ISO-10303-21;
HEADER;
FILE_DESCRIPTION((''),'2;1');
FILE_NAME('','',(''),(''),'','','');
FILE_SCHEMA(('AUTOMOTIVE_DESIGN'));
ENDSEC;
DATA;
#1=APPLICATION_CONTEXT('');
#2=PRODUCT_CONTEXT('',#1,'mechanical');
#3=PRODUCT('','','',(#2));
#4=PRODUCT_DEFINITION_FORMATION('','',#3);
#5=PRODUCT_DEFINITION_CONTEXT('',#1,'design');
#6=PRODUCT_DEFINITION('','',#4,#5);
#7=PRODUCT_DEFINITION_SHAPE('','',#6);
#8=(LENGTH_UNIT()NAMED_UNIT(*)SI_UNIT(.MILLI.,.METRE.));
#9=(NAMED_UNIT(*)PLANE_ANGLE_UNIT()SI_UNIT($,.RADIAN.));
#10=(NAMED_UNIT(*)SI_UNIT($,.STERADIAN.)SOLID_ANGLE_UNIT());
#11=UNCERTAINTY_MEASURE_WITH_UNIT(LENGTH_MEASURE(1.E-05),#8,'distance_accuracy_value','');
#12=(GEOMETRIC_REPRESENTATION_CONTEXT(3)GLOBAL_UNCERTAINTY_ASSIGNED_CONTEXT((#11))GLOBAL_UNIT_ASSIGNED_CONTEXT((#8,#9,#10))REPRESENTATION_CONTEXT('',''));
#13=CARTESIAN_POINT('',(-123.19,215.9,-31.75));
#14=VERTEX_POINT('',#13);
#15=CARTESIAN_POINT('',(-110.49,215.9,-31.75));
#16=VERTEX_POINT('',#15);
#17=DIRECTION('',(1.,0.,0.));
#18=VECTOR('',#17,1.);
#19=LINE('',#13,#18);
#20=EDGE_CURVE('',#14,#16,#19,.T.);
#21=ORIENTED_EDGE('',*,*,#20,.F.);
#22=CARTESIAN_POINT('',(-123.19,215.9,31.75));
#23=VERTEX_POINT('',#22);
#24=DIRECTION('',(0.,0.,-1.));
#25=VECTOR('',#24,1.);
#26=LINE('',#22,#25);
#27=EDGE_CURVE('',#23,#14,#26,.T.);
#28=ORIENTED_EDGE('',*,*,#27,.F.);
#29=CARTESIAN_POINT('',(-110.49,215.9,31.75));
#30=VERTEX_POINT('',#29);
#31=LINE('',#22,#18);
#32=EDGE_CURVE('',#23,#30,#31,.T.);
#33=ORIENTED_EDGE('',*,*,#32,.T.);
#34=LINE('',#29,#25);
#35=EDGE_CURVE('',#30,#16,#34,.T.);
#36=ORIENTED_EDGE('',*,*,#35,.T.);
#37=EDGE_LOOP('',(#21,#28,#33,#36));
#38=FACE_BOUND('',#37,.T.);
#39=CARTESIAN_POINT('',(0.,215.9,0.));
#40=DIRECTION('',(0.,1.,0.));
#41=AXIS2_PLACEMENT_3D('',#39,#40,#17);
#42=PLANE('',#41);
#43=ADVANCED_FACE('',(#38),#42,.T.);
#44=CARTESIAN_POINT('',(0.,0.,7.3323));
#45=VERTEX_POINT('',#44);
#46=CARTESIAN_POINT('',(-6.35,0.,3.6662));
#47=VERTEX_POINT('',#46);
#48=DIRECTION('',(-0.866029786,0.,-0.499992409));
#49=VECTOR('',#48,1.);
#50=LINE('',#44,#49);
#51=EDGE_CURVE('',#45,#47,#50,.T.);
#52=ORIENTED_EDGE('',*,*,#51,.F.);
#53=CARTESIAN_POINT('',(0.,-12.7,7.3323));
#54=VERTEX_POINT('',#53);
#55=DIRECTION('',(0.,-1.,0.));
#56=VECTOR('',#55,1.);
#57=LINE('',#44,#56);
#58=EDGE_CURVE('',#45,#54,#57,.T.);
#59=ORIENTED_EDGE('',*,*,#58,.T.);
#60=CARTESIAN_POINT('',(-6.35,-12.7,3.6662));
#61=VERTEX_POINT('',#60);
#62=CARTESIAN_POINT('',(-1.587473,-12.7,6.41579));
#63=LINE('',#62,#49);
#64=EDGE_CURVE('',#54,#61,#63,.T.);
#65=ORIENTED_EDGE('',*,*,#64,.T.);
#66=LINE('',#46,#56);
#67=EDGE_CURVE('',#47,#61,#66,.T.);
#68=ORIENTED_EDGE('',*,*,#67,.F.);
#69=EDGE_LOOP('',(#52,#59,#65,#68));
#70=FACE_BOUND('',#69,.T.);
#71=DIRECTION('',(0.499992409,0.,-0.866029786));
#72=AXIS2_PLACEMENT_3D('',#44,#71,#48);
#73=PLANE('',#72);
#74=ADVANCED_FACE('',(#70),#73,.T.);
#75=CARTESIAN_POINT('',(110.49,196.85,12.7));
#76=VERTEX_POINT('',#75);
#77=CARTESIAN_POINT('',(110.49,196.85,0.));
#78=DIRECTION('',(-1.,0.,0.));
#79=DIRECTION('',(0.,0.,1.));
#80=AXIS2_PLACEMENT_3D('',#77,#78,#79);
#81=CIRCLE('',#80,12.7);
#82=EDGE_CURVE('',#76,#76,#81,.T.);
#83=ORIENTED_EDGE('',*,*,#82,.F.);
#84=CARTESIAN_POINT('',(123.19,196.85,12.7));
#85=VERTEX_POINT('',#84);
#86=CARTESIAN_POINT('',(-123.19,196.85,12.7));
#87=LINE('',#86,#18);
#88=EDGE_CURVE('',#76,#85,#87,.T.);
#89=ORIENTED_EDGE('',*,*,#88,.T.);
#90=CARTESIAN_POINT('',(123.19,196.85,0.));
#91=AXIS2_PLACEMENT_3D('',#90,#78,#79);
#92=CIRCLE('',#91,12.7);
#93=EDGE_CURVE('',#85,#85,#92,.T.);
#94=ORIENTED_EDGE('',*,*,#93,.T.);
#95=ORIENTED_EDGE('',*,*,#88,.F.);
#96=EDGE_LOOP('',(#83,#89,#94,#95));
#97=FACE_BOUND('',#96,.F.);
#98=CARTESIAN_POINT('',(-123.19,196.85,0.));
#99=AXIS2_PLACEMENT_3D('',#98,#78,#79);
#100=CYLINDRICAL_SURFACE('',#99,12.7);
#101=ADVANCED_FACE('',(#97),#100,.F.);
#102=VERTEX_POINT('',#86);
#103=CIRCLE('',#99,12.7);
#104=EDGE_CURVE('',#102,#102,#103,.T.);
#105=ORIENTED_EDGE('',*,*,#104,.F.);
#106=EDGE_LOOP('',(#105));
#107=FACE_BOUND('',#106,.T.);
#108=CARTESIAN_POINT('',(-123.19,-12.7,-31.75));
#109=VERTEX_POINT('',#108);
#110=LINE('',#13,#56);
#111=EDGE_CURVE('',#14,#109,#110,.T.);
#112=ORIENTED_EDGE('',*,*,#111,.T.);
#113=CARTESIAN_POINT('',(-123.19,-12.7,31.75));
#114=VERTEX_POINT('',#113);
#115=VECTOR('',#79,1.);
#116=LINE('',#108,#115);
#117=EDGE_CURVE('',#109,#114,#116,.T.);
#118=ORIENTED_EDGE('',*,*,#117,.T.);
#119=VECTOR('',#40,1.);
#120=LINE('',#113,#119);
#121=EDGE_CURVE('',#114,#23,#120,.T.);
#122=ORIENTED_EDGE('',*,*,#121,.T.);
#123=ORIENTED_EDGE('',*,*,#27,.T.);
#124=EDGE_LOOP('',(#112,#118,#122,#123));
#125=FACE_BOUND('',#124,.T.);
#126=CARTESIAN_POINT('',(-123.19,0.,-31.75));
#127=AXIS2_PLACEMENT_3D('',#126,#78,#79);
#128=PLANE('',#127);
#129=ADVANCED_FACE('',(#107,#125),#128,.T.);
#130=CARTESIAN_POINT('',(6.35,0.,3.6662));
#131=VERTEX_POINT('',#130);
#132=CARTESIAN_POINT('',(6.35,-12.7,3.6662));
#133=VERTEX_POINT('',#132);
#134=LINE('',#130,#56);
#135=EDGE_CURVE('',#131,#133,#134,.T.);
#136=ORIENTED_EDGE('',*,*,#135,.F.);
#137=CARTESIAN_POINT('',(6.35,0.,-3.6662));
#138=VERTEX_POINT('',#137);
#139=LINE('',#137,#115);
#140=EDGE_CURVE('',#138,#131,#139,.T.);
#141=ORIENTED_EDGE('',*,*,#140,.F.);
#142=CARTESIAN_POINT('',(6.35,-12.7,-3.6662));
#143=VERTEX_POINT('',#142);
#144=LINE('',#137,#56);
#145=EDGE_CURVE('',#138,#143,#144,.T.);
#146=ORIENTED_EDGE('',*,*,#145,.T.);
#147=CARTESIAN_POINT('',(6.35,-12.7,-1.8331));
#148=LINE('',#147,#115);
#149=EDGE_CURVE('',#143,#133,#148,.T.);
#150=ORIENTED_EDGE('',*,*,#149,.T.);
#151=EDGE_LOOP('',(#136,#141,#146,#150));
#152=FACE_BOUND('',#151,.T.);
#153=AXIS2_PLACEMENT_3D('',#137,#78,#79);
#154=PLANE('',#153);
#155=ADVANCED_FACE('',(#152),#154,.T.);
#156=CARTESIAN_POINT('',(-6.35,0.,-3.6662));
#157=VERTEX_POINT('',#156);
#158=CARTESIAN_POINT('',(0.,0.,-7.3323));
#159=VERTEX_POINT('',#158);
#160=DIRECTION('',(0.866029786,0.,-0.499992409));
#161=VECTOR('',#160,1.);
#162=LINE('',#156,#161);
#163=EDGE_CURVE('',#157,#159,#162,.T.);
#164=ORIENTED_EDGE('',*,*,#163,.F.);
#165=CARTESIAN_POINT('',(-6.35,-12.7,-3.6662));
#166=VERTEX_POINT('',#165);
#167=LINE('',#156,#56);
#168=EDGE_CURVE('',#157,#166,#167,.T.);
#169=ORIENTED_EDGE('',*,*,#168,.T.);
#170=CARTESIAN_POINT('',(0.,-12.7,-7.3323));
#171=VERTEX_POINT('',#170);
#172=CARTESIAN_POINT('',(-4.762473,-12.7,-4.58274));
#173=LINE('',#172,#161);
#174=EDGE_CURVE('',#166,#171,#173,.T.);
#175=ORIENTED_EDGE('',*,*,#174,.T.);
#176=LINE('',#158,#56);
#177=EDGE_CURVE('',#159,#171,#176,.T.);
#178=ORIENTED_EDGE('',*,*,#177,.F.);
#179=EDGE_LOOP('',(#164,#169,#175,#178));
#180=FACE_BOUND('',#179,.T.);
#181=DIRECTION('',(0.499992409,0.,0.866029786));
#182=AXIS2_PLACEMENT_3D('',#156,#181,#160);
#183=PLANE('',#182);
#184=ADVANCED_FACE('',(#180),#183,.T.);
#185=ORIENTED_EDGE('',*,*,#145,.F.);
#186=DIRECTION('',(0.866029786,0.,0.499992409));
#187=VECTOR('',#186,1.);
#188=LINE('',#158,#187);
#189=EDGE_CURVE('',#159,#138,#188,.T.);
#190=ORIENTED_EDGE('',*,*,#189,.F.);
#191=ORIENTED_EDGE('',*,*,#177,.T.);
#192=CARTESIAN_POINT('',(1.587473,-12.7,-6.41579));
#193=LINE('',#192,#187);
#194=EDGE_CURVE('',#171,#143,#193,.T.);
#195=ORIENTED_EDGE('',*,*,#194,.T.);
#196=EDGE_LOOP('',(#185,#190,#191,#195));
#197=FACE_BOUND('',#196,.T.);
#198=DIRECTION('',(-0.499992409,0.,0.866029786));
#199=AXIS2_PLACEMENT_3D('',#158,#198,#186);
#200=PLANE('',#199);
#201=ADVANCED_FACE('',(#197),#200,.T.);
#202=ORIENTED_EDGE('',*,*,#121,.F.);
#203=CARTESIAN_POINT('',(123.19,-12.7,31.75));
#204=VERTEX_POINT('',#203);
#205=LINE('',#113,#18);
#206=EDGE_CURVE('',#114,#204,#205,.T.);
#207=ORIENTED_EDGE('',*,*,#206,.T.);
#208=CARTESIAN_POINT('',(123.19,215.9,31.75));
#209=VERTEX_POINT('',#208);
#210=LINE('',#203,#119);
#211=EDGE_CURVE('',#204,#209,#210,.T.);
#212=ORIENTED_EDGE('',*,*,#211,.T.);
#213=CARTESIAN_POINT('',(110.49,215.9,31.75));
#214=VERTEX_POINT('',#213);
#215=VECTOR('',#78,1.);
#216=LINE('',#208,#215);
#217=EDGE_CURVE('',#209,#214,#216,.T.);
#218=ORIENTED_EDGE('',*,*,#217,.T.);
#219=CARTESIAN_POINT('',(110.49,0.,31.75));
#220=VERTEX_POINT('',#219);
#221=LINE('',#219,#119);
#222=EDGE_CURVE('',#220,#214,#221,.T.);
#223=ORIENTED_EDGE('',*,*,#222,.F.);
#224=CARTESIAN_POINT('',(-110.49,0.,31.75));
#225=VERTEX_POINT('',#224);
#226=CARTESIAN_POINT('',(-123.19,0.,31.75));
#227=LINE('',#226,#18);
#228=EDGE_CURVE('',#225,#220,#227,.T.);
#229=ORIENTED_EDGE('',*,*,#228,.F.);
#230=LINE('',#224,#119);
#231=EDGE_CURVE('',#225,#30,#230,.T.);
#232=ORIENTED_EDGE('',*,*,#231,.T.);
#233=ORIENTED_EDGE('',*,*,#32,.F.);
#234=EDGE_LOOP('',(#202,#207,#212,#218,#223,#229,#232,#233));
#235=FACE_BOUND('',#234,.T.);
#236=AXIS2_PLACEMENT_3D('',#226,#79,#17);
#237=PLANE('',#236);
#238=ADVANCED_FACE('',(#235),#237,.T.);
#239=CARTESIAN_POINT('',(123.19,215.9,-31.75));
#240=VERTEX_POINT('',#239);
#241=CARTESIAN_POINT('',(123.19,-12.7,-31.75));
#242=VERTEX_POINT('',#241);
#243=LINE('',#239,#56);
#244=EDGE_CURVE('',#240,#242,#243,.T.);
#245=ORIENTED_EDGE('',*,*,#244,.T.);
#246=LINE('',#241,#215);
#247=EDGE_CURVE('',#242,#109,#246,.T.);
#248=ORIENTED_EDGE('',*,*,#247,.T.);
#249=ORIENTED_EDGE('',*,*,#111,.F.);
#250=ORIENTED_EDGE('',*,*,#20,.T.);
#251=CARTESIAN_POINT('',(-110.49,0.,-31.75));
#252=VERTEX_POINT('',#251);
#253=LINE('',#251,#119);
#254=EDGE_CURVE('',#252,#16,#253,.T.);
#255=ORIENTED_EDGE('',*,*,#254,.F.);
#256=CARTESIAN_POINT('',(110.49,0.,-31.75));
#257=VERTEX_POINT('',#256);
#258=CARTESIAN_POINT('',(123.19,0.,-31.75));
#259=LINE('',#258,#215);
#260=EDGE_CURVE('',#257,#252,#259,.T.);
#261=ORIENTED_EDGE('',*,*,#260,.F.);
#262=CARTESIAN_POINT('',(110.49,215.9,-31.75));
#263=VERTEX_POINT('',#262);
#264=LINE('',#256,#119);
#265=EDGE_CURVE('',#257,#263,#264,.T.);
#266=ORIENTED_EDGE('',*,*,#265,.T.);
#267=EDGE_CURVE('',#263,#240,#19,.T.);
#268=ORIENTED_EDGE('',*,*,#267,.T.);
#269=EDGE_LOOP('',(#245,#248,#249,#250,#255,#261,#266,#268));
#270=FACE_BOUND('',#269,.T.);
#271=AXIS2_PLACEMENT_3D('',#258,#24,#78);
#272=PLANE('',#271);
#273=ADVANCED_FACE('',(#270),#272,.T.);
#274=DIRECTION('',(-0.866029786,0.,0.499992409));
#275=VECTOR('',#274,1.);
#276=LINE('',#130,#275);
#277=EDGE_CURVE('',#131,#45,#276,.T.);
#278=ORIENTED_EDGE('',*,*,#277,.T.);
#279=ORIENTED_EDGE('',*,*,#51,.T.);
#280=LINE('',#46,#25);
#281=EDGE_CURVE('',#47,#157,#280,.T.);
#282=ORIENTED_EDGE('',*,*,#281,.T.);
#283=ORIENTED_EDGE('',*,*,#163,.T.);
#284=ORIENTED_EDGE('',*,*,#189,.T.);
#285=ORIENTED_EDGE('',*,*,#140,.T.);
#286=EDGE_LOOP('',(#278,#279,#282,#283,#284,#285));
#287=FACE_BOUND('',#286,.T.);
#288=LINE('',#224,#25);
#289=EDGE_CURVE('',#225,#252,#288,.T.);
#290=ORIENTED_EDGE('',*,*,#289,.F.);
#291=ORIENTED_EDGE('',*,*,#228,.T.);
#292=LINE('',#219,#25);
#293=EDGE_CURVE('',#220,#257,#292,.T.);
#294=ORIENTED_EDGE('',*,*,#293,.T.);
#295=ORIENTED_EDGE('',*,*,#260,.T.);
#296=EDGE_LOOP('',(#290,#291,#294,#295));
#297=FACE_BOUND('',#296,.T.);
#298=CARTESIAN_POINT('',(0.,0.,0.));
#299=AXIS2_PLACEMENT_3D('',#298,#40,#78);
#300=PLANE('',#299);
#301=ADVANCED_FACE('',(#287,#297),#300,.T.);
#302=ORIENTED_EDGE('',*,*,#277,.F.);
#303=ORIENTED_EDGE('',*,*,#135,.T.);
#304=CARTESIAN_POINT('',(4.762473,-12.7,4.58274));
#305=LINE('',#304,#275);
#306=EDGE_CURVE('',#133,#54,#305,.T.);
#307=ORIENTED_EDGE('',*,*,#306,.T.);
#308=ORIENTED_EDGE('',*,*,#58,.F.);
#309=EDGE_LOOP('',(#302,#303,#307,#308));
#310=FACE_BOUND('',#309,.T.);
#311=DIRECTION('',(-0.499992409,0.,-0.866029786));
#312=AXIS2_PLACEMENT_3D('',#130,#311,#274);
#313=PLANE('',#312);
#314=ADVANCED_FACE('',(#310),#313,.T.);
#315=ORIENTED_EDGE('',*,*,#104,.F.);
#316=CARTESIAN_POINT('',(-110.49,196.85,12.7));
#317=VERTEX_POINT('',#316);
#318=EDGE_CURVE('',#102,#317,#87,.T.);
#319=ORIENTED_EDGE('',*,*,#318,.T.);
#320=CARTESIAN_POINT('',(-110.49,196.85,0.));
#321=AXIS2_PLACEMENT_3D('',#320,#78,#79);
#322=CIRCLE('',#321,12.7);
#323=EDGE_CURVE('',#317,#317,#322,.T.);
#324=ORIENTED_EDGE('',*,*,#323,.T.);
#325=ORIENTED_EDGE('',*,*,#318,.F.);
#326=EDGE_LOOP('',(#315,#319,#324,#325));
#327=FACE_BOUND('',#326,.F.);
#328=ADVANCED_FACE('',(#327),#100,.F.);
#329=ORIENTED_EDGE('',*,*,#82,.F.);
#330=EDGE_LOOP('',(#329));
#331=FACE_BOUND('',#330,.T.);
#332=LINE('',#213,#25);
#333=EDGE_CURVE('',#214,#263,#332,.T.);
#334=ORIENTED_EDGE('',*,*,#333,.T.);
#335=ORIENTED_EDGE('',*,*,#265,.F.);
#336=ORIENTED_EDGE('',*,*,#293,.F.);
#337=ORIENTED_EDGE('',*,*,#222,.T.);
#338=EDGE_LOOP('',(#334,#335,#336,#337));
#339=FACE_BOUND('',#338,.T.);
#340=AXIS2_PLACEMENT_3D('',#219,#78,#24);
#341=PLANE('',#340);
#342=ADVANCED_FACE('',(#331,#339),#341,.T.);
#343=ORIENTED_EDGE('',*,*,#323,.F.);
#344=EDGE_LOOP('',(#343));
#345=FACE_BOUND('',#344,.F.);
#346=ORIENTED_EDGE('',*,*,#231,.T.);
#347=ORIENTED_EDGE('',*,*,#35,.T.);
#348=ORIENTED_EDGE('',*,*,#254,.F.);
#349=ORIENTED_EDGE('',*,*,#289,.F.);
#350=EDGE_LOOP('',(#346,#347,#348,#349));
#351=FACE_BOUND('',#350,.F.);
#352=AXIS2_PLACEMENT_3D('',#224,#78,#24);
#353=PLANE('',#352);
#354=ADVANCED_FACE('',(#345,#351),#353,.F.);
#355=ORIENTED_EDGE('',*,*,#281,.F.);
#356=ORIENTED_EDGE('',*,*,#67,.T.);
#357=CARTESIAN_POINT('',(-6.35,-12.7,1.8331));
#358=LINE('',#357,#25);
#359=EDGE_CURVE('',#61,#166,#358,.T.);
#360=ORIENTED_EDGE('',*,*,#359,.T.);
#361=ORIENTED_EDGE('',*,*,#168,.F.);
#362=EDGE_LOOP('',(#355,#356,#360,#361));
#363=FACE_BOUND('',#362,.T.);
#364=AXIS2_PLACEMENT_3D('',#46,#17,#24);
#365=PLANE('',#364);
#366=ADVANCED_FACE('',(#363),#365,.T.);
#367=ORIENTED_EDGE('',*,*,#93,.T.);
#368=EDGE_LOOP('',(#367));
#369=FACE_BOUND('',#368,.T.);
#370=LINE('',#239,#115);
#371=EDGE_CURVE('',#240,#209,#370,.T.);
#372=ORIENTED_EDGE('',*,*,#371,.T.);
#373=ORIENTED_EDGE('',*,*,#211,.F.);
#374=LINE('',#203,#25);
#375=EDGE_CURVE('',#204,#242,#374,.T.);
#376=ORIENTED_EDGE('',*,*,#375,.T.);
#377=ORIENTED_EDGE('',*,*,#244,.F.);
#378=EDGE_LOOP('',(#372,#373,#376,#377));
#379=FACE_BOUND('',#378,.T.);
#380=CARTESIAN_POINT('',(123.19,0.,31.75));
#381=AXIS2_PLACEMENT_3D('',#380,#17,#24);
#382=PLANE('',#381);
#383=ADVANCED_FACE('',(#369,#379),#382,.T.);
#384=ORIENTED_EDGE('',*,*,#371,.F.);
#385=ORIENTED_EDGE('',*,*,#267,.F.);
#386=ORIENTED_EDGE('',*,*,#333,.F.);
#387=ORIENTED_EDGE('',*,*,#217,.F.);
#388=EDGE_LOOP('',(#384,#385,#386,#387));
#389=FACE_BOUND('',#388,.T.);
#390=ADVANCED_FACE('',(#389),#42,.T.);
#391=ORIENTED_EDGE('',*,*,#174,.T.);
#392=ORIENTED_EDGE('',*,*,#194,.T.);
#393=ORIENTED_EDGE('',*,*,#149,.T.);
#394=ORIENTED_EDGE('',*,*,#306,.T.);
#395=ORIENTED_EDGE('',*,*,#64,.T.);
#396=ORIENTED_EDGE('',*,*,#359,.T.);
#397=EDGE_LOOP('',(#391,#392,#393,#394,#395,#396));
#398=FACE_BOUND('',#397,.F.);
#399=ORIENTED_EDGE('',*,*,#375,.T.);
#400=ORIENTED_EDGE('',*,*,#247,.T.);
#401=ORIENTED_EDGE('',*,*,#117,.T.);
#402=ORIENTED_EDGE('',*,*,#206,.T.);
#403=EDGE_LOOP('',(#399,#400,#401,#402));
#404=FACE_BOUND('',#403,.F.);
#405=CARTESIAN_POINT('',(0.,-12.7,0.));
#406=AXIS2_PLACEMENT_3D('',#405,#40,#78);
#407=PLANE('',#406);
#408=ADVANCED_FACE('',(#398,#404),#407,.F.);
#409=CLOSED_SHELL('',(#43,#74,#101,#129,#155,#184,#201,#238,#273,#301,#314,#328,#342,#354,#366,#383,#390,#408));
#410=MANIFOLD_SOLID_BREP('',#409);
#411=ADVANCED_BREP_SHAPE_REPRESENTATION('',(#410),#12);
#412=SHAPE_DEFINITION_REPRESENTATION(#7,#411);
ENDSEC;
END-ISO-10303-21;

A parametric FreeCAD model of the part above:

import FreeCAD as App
import Part
import Sketcher
Q = App.Units.Quantity


def add_polygon(sketch, points):
    """Adds a closed chain of lines whose ends are joined by coincident constraints."""
    first, n = sketch.GeometryCount, len(points)
    for a, b in zip(points, points[1:] + points[:1]):
        sketch.addGeometry(Part.LineSegment(App.Vector(*a, 0), App.Vector(*b, 0)), False)
    for i in range(n):
        sketch.addConstraint(Sketcher.Constraint("Coincident", first + i, 2, first + (i + 1) % n, 1))

doc = App.newDocument("Part")
body = doc.addObject("PartDesign::Body", "Body")

sketch1 = body.newObject("Sketcher::SketchObject", "Sketch")
sketch1.AttachmentSupport = (doc.getObject("XZ_Plane"), [""])
sketch1.MapMode = "FlatFace"
add_polygon(sketch1, [(-123, -32), (-123, 32), (123, 32), (123, -32)])
sketch1.addConstraint(Sketcher.Constraint("Vertical", 0))
sketch1.addConstraint(Sketcher.Constraint("Horizontal", 1))
sketch1.addConstraint(Sketcher.Constraint("Vertical", 2))
sketch1.addConstraint(Sketcher.Constraint("Horizontal", 3))
sketch1.addConstraint(Sketcher.Constraint("Symmetric", 0, 2, 2, 2, -1, 1))
sketch1.addConstraint(Sketcher.Constraint("DistanceX", 1, 1, 1, 2, Q("9.7 in")))
sketch1.addConstraint(Sketcher.Constraint("DistanceY", 0, 1, 0, 2, Q("2.5 in")))
pad1 = body.newObject("PartDesign::Pad", "Pad")
pad1.Profile = sketch1
pad1.Length = Q("0.5 in")

sketch2 = body.newObject("Sketcher::SketchObject", "Sketch001")
sketch2.AttachmentSupport = (doc.getObject("XZ_Plane"), [""])
sketch2.MapMode = "FlatFace"
add_polygon(sketch2, [(123, -32), (110, -32), (110, 32), (123, 32)])
add_polygon(sketch2, [(-123, -32), (-123, 32), (-110, 32), (-110, -32)])
sketch2.addConstraint(Sketcher.Constraint("Horizontal", 0))
sketch2.addConstraint(Sketcher.Constraint("Vertical", 1))
sketch2.addConstraint(Sketcher.Constraint("Horizontal", 2))
sketch2.addConstraint(Sketcher.Constraint("Vertical", 3))
sketch2.addConstraint(Sketcher.Constraint("Vertical", 4))
sketch2.addConstraint(Sketcher.Constraint("Horizontal", 5))
sketch2.addConstraint(Sketcher.Constraint("Vertical", 6))
sketch2.addConstraint(Sketcher.Constraint("Horizontal", 7))
sketch2.addConstraint(Sketcher.Constraint("Symmetric", 3, 2, 4, 2, -1, 1))
sketch2.addConstraint(Sketcher.Constraint("Symmetric", 1, 2, 6, 2, -1, 1))
sketch2.addConstraint(Sketcher.Constraint("Horizontal", 2, 2, 4, 2))
sketch2.addConstraint(Sketcher.Constraint("DistanceX", 0, 2, 0, 1, Q("0.5 in")))
sketch2.addConstraint(Sketcher.Constraint("DistanceY", 1, 1, 1, 2, Q("2.5 in")))
sketch2.addConstraint(Sketcher.Constraint("DistanceX", 4, 2, 1, 2, Q("9.2 in")))
pad2 = body.newObject("PartDesign::Pad", "Pad001")
pad2.Profile = sketch2
pad2.Length = Q("8.5 in")
pad2.Reversed = True

sketch3 = body.newObject("Sketcher::SketchObject", "Sketch002")
sketch3.AttachmentSupport = (doc.getObject("YZ_Plane"), [""])
sketch3.MapMode = "FlatFace"
sketch3.AttachmentOffset = App.Placement(App.Vector(0, 0, -4.85 * 25.4), App.Rotation())
sketch3.addGeometry(Part.Circle(App.Vector(197, 0, 0), App.Vector(0, 0, 1), 13), False)
sketch3.addConstraint(Sketcher.Constraint("PointOnObject", 0, 3, -1))
sketch3.addConstraint(Sketcher.Constraint("Diameter", 0, Q("1 in")))
sketch3.addConstraint(Sketcher.Constraint("DistanceX", -1, 1, 0, 3, Q("7.75 in")))
pocket1 = body.newObject("PartDesign::Pocket", "Pocket")
pocket1.Profile = sketch3
pocket1.Type = "ThroughAll"
pocket1.Reversed = True

sketch4 = body.newObject("Sketcher::SketchObject", "Sketch003")
sketch4.AttachmentSupport = (doc.getObject("XZ_Plane"), [""])
sketch4.MapMode = "FlatFace"
add_polygon(sketch4, [(6, 4), (6, -4), (0, -7), (-6, -4), (-6, 4), (0, 7)])
sketch4.addConstraint(Sketcher.Constraint("Vertical", 0))
sketch4.addConstraint(Sketcher.Constraint("Vertical", 3))
sketch4.addConstraint(Sketcher.Constraint("Symmetric", 0, 2, 3, 2, -1, 1))
sketch4.addConstraint(Sketcher.Constraint("Symmetric", 1, 2, 4, 2, -1, 1))
sketch4.addConstraint(Sketcher.Constraint("PointOnObject", 1, 2, -2))
sketch4.addConstraint(Sketcher.Constraint("Parallel", 2, 5))
sketch4.addConstraint(Sketcher.Constraint("Horizontal", 0, 2, 2, 2))
sketch4.addConstraint(Sketcher.Constraint("DistanceX", 2, 2, 0, 2, Q("0.5 in")))
sketch4.addConstraint(Sketcher.Constraint("Angle", 1, Q("-150.0005 deg")))
sketch4.addConstraint(Sketcher.Constraint("DistanceY", 1, 2, 3, 2, Q("0.433 in")))
pocket2 = body.newObject("PartDesign::Pocket", "Pocket001")
pocket2.Profile = sketch4
pocket2.Type = "ThroughAll"
pocket2.Reversed = True

doc.recompute()
